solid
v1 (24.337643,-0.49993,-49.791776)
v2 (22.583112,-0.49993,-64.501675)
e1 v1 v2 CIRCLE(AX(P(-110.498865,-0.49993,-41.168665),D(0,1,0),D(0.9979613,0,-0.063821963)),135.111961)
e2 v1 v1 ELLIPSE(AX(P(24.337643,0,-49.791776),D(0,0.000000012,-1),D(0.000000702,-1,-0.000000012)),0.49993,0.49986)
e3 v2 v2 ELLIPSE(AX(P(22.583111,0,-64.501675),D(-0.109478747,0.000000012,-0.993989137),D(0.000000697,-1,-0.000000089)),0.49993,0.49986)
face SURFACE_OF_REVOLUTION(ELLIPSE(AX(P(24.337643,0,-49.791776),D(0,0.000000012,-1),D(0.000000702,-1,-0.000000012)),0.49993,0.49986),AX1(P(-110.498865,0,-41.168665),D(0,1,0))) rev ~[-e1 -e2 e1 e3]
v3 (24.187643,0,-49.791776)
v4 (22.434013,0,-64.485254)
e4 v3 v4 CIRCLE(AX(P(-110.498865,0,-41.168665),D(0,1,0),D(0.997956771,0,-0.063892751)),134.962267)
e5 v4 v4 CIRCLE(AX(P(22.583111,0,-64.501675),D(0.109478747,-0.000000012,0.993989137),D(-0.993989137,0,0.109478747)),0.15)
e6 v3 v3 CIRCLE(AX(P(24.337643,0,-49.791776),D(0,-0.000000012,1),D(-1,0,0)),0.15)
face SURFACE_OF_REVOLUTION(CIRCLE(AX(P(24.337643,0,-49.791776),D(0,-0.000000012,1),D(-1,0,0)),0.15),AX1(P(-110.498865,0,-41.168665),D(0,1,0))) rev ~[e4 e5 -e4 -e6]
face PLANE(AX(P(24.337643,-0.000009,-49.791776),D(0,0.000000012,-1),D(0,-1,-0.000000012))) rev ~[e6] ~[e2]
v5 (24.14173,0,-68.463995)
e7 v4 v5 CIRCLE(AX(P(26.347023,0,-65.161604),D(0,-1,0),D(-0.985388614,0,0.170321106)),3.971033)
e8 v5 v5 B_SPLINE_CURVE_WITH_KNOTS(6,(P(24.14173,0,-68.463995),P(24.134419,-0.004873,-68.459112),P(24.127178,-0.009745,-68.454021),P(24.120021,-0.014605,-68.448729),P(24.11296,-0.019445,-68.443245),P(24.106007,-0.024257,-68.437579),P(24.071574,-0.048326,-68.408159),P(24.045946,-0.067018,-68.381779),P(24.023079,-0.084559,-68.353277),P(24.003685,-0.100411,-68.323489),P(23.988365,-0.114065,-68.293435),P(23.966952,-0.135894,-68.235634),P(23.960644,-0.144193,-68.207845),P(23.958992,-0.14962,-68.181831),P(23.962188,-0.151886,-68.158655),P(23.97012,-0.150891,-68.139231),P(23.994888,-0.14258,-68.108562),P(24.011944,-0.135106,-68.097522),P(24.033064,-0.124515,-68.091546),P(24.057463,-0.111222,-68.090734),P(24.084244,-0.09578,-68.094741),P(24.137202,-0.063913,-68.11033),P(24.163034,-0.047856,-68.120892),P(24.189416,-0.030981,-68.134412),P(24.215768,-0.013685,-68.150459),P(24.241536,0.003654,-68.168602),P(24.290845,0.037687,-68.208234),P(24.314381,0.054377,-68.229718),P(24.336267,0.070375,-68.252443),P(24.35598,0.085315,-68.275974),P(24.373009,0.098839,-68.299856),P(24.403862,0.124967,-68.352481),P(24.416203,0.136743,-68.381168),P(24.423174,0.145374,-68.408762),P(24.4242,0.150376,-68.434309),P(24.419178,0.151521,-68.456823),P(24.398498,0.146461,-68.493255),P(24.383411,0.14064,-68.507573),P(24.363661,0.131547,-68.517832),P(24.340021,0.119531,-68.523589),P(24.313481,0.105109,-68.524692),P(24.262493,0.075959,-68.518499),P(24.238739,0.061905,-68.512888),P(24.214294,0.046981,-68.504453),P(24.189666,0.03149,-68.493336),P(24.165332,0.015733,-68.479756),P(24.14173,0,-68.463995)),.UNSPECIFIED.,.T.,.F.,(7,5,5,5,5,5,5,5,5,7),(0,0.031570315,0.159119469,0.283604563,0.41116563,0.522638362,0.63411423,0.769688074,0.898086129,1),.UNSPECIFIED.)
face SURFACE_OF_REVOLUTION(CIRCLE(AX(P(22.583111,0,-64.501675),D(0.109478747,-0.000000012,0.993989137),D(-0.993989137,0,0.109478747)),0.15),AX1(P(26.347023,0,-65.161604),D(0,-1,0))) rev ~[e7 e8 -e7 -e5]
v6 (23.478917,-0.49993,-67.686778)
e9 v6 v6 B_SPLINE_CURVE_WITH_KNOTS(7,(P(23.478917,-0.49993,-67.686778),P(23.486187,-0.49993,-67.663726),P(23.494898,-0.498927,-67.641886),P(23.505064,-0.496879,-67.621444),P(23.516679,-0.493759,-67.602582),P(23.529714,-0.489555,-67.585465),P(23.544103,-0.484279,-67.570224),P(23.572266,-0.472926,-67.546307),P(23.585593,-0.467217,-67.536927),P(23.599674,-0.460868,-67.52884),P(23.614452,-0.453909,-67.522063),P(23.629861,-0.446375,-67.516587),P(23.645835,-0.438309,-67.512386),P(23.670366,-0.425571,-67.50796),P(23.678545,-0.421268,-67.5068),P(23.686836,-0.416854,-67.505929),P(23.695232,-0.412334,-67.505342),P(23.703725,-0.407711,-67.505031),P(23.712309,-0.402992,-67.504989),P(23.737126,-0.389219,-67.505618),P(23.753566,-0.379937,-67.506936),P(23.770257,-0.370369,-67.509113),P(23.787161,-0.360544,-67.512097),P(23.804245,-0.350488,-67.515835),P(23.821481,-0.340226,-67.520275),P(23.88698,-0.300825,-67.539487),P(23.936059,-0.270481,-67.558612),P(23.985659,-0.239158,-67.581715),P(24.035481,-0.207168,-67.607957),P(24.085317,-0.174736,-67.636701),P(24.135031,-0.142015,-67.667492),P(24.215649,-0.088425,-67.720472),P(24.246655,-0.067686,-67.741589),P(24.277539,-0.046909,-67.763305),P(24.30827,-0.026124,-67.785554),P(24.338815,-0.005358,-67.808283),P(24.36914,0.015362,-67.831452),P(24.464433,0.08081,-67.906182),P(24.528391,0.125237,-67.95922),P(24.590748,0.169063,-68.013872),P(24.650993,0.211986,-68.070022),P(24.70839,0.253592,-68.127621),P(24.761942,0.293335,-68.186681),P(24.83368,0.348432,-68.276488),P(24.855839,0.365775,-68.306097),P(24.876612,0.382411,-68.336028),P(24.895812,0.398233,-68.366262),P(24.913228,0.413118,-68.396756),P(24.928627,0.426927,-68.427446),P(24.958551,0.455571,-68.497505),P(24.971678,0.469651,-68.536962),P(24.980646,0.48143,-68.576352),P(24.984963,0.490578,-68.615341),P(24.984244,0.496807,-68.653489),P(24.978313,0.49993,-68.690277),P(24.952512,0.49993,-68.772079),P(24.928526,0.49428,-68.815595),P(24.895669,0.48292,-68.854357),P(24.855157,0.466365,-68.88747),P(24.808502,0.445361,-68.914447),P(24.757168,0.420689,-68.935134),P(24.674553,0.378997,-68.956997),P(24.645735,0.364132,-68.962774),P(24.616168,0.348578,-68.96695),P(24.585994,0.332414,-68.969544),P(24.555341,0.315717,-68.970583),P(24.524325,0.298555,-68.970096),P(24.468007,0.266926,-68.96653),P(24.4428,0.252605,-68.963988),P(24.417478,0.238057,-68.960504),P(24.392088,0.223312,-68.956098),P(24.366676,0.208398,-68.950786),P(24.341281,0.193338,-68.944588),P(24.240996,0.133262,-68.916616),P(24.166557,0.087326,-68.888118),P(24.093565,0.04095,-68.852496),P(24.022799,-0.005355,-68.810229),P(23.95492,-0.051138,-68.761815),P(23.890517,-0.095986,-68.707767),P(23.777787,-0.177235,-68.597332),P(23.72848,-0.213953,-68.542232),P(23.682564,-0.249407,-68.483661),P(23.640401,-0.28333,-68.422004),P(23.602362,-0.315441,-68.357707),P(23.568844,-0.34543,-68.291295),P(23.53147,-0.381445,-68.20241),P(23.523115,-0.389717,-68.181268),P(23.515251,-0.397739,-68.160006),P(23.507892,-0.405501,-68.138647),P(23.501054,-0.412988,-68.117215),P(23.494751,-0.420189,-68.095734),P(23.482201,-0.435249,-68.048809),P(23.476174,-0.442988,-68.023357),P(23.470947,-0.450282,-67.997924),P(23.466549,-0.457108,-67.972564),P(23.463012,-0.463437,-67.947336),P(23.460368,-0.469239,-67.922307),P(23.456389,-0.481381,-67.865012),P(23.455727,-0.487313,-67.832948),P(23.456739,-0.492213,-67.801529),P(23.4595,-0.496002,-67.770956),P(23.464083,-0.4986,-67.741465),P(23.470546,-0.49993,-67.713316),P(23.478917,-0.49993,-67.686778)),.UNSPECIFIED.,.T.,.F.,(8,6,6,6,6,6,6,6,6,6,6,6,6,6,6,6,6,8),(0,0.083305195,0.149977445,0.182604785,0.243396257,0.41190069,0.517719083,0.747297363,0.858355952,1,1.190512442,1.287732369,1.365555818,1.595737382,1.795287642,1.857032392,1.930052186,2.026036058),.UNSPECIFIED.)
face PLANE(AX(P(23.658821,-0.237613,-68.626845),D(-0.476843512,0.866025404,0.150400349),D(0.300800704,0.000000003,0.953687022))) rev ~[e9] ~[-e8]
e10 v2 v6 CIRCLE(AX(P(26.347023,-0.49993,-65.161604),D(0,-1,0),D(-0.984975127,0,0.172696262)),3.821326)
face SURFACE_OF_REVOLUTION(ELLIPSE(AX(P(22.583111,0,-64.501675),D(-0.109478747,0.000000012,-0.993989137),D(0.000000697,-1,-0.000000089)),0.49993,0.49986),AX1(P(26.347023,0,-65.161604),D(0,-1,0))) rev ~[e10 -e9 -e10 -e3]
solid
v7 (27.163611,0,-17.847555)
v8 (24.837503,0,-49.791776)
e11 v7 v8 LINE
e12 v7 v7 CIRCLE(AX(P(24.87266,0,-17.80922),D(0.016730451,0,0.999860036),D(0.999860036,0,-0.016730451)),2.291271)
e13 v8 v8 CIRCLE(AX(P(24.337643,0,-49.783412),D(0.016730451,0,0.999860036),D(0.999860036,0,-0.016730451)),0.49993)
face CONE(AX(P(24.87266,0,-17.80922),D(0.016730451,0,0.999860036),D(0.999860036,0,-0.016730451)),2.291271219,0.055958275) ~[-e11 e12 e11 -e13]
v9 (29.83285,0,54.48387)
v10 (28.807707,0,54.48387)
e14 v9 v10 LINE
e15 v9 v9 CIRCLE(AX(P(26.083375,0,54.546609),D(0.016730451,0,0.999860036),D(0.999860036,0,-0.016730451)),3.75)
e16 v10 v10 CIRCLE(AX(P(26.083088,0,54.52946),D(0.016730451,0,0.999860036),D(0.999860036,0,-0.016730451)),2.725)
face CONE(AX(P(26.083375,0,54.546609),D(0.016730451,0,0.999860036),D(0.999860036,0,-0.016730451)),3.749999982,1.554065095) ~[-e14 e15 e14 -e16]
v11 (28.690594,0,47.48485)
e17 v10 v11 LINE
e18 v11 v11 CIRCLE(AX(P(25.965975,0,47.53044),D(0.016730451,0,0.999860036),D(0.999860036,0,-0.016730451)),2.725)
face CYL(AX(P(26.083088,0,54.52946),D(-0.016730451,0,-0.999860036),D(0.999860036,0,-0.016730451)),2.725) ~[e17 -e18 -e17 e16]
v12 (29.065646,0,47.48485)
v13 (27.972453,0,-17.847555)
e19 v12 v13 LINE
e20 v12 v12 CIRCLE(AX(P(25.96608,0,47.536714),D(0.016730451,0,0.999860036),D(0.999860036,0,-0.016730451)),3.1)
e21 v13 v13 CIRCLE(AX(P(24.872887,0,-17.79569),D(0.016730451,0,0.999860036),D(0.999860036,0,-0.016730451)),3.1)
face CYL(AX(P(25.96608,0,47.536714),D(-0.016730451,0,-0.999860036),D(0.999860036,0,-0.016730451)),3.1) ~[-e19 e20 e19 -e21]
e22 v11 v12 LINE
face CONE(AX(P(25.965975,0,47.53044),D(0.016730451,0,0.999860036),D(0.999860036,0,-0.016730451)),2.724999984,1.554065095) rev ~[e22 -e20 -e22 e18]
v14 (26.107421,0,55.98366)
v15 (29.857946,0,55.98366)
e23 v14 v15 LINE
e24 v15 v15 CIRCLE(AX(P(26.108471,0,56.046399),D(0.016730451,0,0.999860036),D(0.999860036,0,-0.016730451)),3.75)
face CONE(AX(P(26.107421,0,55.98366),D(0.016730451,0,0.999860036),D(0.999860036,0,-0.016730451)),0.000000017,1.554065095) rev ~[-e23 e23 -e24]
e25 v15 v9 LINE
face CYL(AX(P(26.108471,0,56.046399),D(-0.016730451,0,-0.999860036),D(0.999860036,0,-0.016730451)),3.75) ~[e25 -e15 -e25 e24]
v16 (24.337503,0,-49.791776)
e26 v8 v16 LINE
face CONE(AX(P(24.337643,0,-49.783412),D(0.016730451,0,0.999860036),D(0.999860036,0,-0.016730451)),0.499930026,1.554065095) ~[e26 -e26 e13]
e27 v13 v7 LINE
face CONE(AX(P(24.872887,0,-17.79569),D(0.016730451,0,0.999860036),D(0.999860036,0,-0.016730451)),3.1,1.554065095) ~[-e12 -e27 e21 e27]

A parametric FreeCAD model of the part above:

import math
import FreeCAD as App
import Part
import Sketcher
from FreeCAD import Vector
Q = App.Units.Quantity

doc = App.newDocument("Part")
body = doc.addObject("PartDesign::Body", "Body")

sketch1 = body.newObject("Sketcher::SketchObject", "Sketch")
sketch1.AttachmentSupport = (doc.getObject("XZ_Plane"), [""])
sketch1.MapMode = "FlatFace"
sketch1.addGeometry([
    Part.LineSegment(Vector(24.89, -17.01, 0), Vector(26.11, 55.98, 0)),
    Part.LineSegment(Vector(26.11, 55.98, 0), Vector(29.86, 55.98, 0)),
    Part.LineSegment(Vector(29.86, 55.98, 0), Vector(29.83, 54.48, 0)),
    Part.LineSegment(Vector(29.83, 54.48, 0), Vector(28.81, 54.48, 0)),
    Part.LineSegment(Vector(28.81, 54.48, 0), Vector(28.69, 47.48, 0)),
    Part.LineSegment(Vector(28.69, 47.48, 0), Vector(29.07, 47.48, 0)),
    Part.LineSegment(Vector(29.07, 47.48, 0), Vector(27.97, -17.85, 0)),
    Part.LineSegment(Vector(27.97, -17.85, 0), Vector(27.16, -17.85, 0)),
    Part.LineSegment(Vector(27.16, -17.85, 0), Vector(24.84, -49.79, 0)),
    Part.LineSegment(Vector(24.84, -49.79, 0), Vector(24.34, -49.79, 0)),
    Part.LineSegment(Vector(24.34, -49.79, 0), Vector(24.89, -17.01, 0)),
], False)
sketch1.addGeometry(Part.LineSegment(Vector(24.34, -49.79, 0), Vector(26.11, 56.05, 0)), True)
sketch1.addConstraint([
    Sketcher.Constraint("Coincident", 0, 2, 1, 1),
    Sketcher.Constraint("Coincident", 1, 2, 2, 1),
    Sketcher.Constraint("Coincident", 2, 2, 3, 1),
    Sketcher.Constraint("Coincident", 3, 2, 4, 1),
    Sketcher.Constraint("Coincident", 4, 2, 5, 1),
    Sketcher.Constraint("Coincident", 5, 2, 6, 1),
    Sketcher.Constraint("Coincident", 6, 2, 7, 1),
    Sketcher.Constraint("Coincident", 7, 2, 8, 1),
    Sketcher.Constraint("Coincident", 8, 2, 9, 1),
    Sketcher.Constraint("Coincident", 9, 2, 10, 1),
    Sketcher.Constraint("Coincident", 10, 2, 0, 1),
    Sketcher.Constraint("Horizontal", 1),
    Sketcher.Constraint("Horizontal", 3),
    Sketcher.Constraint("Horizontal", 5),
    Sketcher.Constraint("Horizontal", 7),
    Sketcher.Constraint("Horizontal", 9),
    Sketcher.Constraint("Coincident", 11, 1, 9, 2),
    Sketcher.Constraint("Parallel", 0, 2),
    Sketcher.Constraint("Parallel", 2, 4),
    Sketcher.Constraint("Parallel", 4, 6),
    Sketcher.Constraint("Parallel", 6, 10),
    Sketcher.Constraint("Parallel", 10, 11),
    Sketcher.Constraint("Distance", 4, Q("7 mm")),
    Sketcher.Constraint("DistanceX", 9, 2, 9, 1, Q("0.5 mm")),
    Sketcher.Constraint("Distance", 2, Q("1.5 mm")),
    Sketcher.Constraint("Distance", 8, Q("32.0288 mm")),
    Sketcher.Constraint("Distance", 10, Q("32.7906 mm")),
    Sketcher.Constraint("DistanceX", 7, 2, 7, 1, Q("0.808842 mm")),
    Sketcher.Constraint("DistanceY", -1, 1, 11, 2, Q("56.046399 mm")),
    Sketcher.Constraint("DistanceX", 5, 2, 1, 2, Q("0.7923 mm")),
    Sketcher.Constraint("DistanceX", 8, 2, 10, 2, Q("0.048602 mm")),
    Sketcher.Constraint("Distance", 6, Q("65.34155 mm")),
    Sketcher.Constraint("Distance", 11, Q("105.85299 mm")),
    Sketcher.Constraint("DistanceX", 1, 1, 1, 2, Q("3.750525 mm")),
    Sketcher.Constraint("DistanceX", 3, 2, 3, 1, Q("1.025143 mm")),
    Sketcher.Constraint("DistanceX", -1, 1, 0, 2, Q("26.107421 mm")),
])
revolution = body.newObject("PartDesign::Revolution", "Revolution")
revolution.Profile = sketch1
revolution.ReferenceAxis = (sketch1, ["Axis0"])
revolution.Angle = 360
body2 = doc.addObject("PartDesign::Body", "Body001")

sketch2 = body2.newObject("Sketcher::SketchObject", "Sketch001")
sketch2.AttachmentSupport = (doc.getObject("XY_Plane001"), [""])
sketch2.MapMode = "FlatFace"
sketch2.AttachmentOffset = App.Placement(Vector(0, 0, -49.791776), App.Rotation())
sketch2.addGeometry([
    Part.Ellipse(Vector(24.337643, -0.49993, 0), Vector(24.837503, 0, 0), Vector(24.337643, 0, 0)),
    Part.Circle(Vector(24.337643, 0, 0), Vector(0, 0, 1), 0.15),
], False)
sketch2.addConstraint([
    Sketcher.Constraint("Block", 0),
    Sketcher.Constraint("PointOnObject", 1, 3, -1),
    Sketcher.Constraint("Diameter", 1, Q("0.3 mm")),
    Sketcher.Constraint("DistanceX", -1, 1, 1, 3, Q("24.337643 mm")),
])

sketch3 = body2.newObject("Sketcher::SketchObject", "Sketch002")
sketch3.AttachmentSupport = (doc.getObject("XZ_Plane001"), [""])
sketch3.MapMode = "FlatFace"
sketch3.addGeometry([
    Part.ArcOfCircle(Part.Circle(Vector(-110.5, -41.2, 0), Vector(0, 0, 1), 135.1), math.radians(-9.94), math.radians(-3.66)),
    Part.ArcOfCircle(Part.Circle(Vector(26.3, -65.2, 0), Vector(0, 0, 1), 3.8), math.radians(170), math.radians(249)),
], False)
sketch3.addConstraint([
    Sketcher.Constraint("Tangent", 0, 1, 1, 1),
    Sketcher.Constraint("Radius", 0, Q("135.111821 mm")),
    Sketcher.Constraint("Radius", 1, Q("3.821467 mm")),
    Sketcher.Constraint("DistanceY", 0, 1, -1, 1, Q("64.50166 mm")),
    Sketcher.Constraint("DistanceX", -1, 1, 1, 2, Q("24.967269 mm")),
    Sketcher.Constraint("DistanceX", 0, 3, 1, 3, Q("136.845889 mm")),
    Sketcher.Constraint("DistanceX", 0, 1, 0, 2, Q("1.75453 mm")),
    Sketcher.Constraint("DistanceY", 1, 2, 1, 3, Q("3.56369 mm")),
])
doc.recompute()

additivepipe = body2.newObject("PartDesign::AdditivePipe", "AdditivePipe")
additivepipe.Profile = sketch2
additivepipe.Spine = (sketch3, ["Edge1", "Edge2"])

sketch4 = body2.newObject("Sketcher::SketchObject", "Sketch003")
sketch4.Placement = App.Placement(Vector(10.399402, -18.887006, -3.280057), App.Rotation(Vector(0.300800704, 0.000000003, 0.953687022), Vector(0.825917188, 0.5, -0.260501053), Vector(-0.476843512, 0.866025404, 0.150400349), "ZXY"))
sketch4.addGeometry([
    Part.LineSegment(Vector(-59.5, 40, 0), Vector(-59.5, 34.6, 0)),
    Part.LineSegment(Vector(-59.5, 34.6, 0), Vector(-57.2, 34.6, 0)),
    Part.LineSegment(Vector(-57.2, 34.6, 0), Vector(-57.2, 40, 0)),
    Part.LineSegment(Vector(-57.2, 40, 0), Vector(-59.5, 40, 0)),
], False)
sketch4.addConstraint([
    Sketcher.Constraint("Coincident", 0, 2, 1, 1),
    Sketcher.Constraint("Coincident", 1, 2, 2, 1),
    Sketcher.Constraint("Coincident", 2, 2, 3, 1),
    Sketcher.Constraint("Coincident", 3, 2, 0, 1),
    Sketcher.Constraint("Vertical", 0),
    Sketcher.Constraint("Horizontal", 1),
    Sketcher.Constraint("Vertical", 2),
    Sketcher.Constraint("Horizontal", 3),
    Sketcher.Constraint("DistanceX", 1, 1, 1, 2, Q("2.344254 mm")),
    Sketcher.Constraint("DistanceY", 0, 2, 0, 1, Q("5.464655 mm")),
    Sketcher.Constraint("DistanceY", -1, 1, 0, 2, Q("34.566458 mm")),
    Sketcher.Constraint("DistanceX", 0, 2, -1, 1, Q("59.504068 mm")),
])
pocket1 = body2.newObject("PartDesign::Pocket", "Pocket")
pocket1.Profile = sketch4
pocket1.Length = 10

doc.recompute()
